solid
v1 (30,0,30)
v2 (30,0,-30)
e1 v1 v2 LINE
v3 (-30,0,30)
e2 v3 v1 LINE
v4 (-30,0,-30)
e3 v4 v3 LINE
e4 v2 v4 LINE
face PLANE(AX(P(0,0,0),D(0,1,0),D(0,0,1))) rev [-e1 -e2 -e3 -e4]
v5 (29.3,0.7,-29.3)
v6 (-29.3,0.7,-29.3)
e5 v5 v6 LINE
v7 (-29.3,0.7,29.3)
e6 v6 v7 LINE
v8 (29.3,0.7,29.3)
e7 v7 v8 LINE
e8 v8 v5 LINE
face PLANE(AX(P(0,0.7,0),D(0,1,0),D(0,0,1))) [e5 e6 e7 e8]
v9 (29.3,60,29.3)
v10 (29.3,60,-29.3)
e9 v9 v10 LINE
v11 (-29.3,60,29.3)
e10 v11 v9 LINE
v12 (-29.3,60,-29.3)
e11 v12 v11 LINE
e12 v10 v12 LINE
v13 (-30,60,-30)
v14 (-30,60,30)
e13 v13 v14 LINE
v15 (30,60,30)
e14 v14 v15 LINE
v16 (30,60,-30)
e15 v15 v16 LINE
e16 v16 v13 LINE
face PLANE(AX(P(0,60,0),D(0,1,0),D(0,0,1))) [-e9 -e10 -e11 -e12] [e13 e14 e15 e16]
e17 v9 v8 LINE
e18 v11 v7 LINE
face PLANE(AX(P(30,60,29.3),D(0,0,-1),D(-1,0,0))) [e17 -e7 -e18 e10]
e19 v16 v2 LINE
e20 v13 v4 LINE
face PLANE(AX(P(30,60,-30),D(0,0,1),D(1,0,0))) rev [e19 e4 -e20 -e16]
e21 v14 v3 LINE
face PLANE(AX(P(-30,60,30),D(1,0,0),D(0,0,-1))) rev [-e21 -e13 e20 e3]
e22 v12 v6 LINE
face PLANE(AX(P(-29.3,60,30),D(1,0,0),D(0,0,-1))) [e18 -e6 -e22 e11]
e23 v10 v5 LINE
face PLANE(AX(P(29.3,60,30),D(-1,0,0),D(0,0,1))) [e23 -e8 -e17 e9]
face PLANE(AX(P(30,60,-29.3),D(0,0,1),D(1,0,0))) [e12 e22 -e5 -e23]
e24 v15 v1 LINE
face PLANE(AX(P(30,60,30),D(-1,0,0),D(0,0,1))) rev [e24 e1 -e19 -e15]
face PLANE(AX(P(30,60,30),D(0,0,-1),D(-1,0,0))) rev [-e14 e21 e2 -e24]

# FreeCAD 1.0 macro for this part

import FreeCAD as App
import Part
import Sketcher

V = App.Vector


def faces_at(feature, points):
    """Names of the faces that lie closest to the given points."""
    faces = feature.Shape.Faces
    near = lambda p: min(range(len(faces)), key=lambda i: faces[i].distToShape(Part.Vertex(*p))[0])
    return sorted({f"Face{near(p) + 1}" for p in points})

doc = App.newDocument("Part")
body = doc.addObject("PartDesign::Body", "Body")

sketch1 = body.newObject("Sketcher::SketchObject", "Sketch")
sketch1.AttachmentSupport = (doc.getObject("XZ_Plane"), [""])
sketch1.MapMode = "FlatFace"
sketch1.addGeometry([
    Part.LineSegment(V(-30, -30, 0), V(-30, 30, 0)),
    Part.LineSegment(V(-30, 30, 0), V(30, 30, 0)),
    Part.LineSegment(V(30, 30, 0), V(30, -30, 0)),
    Part.LineSegment(V(30, -30, 0), V(-30, -30, 0)),
], False)
sketch1.addConstraint([
    Sketcher.Constraint("Coincident", 0, 2, 1, 1),
    Sketcher.Constraint("Coincident", 1, 2, 2, 1),
    Sketcher.Constraint("Coincident", 2, 2, 3, 1),
    Sketcher.Constraint("Coincident", 3, 2, 0, 1),
    Sketcher.Constraint("Vertical", 0),
    Sketcher.Constraint("Horizontal", 1),
    Sketcher.Constraint("Vertical", 2),
    Sketcher.Constraint("Horizontal", 3),
    Sketcher.Constraint("Symmetric", 0, 2, 2, 2, -1, 1),
    Sketcher.Constraint("Equal", 3, 0),
    Sketcher.Constraint("DistanceX", 1, 1, 1, 2, 60.0),
])
pad1 = body.newObject("PartDesign::Pad", "Pad")
pad1.Profile = sketch1
pad1.Length = 60
pad1.Reversed = True
doc.recompute()

thickness = body.newObject("PartDesign::Thickness", "Thickness")
thickness.Base = (pad1, faces_at(pad1, [(0, 60, 0)]))
thickness.Value = 0.7
thickness.Reversed = True
thickness.Join = "Intersection"

doc.recompute()
